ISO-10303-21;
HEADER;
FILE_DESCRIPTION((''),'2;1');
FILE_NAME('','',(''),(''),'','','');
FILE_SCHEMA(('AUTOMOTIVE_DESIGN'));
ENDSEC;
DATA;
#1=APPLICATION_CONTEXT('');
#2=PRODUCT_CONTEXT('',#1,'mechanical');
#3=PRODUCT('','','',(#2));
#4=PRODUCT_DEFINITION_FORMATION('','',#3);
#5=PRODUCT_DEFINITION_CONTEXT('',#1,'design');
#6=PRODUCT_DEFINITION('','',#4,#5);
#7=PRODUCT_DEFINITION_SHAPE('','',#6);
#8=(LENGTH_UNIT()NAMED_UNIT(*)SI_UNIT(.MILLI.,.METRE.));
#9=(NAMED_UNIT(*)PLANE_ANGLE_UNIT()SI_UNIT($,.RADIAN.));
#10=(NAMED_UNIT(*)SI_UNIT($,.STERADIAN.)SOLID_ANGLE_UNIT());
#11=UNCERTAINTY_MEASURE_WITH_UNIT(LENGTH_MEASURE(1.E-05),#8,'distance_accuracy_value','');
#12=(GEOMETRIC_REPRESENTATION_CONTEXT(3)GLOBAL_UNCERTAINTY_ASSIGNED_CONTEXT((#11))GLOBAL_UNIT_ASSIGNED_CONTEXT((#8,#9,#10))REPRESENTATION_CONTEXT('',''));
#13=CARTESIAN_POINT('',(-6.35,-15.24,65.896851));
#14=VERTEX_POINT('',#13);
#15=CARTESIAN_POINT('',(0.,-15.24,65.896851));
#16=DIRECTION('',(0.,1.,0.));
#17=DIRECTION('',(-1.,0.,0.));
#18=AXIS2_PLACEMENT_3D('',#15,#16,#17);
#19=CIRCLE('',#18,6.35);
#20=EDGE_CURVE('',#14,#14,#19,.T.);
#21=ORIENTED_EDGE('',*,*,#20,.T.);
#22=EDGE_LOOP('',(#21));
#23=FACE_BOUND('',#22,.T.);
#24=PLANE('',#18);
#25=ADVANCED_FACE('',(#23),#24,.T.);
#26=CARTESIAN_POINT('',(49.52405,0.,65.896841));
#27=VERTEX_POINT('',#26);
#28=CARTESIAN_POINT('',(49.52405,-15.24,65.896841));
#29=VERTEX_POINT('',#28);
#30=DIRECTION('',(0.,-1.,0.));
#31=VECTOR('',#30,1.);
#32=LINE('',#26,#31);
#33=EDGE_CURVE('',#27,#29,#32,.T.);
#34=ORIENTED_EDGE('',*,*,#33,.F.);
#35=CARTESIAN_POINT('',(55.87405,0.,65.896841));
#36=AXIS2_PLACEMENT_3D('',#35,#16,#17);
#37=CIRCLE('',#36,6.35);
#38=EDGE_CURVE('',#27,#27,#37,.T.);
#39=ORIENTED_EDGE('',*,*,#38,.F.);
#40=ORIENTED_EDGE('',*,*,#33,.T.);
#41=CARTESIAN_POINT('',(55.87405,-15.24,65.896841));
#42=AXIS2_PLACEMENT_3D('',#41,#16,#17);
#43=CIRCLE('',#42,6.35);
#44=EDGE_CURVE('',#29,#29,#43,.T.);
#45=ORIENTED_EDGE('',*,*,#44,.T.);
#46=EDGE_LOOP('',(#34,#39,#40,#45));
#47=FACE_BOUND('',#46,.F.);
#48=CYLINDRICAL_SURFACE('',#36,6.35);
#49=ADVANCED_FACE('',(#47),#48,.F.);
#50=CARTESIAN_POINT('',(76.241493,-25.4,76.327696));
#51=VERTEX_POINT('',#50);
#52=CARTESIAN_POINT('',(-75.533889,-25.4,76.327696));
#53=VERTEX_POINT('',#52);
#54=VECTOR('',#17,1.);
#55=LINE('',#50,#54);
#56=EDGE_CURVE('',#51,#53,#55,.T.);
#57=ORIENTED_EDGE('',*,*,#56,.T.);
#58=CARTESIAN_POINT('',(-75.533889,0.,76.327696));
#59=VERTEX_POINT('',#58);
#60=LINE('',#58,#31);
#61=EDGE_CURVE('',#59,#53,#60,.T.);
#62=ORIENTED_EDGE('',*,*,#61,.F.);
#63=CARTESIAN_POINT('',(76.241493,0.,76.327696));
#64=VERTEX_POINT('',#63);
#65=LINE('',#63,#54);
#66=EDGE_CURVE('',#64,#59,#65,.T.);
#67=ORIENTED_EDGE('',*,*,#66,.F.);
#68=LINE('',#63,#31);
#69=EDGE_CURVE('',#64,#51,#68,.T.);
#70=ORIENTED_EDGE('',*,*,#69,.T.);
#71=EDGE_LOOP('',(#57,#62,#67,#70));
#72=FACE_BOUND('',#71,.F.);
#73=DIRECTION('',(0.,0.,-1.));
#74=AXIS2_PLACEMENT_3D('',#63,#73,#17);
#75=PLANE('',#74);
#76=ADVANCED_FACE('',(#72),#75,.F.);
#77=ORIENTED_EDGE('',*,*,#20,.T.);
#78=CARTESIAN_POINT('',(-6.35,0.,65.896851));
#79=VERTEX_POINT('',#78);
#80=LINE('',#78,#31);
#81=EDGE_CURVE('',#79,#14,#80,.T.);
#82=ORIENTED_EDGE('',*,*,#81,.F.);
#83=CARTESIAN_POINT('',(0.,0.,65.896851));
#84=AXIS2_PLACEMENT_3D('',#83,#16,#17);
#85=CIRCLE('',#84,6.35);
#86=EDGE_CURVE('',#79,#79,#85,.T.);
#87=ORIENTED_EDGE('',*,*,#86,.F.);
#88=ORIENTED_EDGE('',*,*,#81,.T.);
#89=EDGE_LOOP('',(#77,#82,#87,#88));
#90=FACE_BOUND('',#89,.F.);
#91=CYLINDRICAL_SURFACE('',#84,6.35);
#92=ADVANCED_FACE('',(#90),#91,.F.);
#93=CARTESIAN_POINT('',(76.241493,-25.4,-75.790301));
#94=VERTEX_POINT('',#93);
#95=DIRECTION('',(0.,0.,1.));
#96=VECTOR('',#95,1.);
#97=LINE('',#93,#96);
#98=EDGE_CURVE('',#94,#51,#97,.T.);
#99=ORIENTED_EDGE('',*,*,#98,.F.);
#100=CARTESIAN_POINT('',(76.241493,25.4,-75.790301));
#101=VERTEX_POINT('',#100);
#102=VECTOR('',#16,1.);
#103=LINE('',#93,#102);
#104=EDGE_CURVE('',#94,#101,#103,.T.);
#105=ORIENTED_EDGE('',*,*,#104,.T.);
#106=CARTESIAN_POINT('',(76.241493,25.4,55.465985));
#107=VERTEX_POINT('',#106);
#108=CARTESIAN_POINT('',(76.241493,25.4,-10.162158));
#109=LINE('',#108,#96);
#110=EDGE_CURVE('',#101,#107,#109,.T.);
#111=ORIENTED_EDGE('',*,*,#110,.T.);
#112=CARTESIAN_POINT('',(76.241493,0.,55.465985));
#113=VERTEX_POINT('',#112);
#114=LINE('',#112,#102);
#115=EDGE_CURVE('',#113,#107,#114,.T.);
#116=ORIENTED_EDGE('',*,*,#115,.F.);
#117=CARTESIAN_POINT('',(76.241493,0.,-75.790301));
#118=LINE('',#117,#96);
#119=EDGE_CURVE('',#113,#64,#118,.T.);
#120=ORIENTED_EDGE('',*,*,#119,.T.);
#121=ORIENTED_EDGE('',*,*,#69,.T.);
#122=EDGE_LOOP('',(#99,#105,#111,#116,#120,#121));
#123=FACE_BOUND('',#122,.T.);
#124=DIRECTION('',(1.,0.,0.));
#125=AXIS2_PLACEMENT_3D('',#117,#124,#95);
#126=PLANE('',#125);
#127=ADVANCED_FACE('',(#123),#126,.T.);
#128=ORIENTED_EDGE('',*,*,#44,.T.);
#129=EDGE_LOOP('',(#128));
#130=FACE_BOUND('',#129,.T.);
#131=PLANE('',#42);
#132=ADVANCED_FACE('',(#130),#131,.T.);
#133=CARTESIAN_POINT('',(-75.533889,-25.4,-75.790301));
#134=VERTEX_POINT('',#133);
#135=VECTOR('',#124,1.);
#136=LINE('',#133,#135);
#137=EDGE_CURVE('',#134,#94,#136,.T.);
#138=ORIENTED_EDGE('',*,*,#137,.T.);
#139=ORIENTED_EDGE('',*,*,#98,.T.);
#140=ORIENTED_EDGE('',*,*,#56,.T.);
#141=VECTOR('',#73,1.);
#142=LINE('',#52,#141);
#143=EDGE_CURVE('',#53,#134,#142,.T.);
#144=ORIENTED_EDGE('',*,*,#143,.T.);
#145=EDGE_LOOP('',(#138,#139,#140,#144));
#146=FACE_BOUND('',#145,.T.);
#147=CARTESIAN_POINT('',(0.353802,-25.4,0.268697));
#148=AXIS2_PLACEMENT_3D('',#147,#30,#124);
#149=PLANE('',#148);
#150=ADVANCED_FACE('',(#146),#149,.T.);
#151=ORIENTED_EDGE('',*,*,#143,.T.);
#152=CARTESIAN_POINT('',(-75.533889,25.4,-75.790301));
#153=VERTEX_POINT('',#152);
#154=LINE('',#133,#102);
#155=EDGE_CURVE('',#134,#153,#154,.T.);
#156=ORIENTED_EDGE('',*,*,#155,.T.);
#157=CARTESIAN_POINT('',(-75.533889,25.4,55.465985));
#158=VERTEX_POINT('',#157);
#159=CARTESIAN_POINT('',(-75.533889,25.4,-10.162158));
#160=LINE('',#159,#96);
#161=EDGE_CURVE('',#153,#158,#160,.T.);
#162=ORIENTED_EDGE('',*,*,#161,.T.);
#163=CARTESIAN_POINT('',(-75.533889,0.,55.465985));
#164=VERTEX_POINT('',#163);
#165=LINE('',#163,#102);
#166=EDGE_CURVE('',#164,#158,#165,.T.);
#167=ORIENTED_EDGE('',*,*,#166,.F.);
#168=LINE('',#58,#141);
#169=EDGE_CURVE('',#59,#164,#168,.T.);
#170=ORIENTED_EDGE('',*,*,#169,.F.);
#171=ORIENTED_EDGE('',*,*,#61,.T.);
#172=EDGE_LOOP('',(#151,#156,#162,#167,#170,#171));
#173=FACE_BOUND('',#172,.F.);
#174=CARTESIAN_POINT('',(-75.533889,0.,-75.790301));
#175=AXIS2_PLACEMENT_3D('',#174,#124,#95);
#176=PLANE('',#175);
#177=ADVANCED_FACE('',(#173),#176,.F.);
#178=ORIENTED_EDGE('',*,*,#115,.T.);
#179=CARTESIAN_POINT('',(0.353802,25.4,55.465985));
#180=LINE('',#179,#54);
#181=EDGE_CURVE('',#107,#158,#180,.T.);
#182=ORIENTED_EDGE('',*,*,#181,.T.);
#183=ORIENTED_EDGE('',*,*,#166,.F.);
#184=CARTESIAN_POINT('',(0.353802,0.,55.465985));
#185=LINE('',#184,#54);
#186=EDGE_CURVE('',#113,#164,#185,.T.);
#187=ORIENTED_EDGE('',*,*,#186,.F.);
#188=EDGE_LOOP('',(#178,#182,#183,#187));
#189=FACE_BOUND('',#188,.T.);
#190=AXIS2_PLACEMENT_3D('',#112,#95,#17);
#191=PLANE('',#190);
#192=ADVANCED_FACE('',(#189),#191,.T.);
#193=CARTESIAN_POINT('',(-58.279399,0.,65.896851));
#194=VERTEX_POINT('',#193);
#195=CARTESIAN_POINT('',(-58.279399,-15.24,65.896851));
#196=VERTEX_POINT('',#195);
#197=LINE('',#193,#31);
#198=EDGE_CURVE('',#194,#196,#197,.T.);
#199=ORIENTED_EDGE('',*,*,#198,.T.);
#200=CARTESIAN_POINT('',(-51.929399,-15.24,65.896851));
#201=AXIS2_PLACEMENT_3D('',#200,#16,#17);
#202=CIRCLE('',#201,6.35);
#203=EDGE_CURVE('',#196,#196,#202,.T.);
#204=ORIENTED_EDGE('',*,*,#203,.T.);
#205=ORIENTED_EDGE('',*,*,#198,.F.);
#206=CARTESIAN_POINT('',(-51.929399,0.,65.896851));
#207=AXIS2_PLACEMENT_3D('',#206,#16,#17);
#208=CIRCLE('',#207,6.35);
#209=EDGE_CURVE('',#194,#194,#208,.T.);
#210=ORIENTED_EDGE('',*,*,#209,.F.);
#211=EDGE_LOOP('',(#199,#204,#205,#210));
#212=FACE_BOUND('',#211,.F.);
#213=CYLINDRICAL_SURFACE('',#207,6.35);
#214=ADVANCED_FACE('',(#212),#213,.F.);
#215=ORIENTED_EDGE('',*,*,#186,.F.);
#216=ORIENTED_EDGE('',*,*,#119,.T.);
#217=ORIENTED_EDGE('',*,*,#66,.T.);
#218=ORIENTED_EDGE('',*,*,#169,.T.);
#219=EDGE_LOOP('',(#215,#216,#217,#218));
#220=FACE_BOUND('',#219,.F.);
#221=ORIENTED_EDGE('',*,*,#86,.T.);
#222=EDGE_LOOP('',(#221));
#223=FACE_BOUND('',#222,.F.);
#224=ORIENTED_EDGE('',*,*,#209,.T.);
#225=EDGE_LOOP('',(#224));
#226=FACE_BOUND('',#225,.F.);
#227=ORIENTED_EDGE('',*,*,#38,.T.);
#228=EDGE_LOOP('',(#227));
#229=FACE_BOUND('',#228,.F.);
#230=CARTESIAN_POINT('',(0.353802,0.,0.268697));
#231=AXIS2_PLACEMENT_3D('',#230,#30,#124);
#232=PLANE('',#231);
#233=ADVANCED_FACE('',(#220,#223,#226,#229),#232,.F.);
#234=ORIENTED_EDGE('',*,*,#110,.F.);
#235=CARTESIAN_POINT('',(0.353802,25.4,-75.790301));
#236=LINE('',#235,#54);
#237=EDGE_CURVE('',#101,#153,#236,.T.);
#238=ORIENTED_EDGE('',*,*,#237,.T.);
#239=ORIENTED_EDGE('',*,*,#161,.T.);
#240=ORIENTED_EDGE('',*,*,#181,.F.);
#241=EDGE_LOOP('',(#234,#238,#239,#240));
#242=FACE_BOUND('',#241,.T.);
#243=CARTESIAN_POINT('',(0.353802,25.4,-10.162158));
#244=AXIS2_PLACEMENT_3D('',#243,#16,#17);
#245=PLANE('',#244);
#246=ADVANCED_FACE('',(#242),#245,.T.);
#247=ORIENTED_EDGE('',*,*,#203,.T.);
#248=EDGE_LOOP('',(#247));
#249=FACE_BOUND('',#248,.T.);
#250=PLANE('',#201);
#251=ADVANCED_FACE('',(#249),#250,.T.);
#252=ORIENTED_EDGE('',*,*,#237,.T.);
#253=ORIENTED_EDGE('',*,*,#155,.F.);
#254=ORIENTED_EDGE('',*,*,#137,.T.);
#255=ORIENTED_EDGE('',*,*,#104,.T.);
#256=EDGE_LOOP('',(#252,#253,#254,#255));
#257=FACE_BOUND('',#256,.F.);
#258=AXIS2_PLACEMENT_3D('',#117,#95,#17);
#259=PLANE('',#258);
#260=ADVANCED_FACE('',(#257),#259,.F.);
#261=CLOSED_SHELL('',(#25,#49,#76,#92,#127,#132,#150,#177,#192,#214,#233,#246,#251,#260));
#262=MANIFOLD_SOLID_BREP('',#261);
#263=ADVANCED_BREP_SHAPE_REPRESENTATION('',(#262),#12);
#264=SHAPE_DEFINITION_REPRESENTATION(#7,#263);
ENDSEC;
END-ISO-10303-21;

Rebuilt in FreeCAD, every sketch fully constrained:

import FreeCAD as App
import Part
import Sketcher
from FreeCAD import Vector
Q = App.Units.Quantity

doc = App.newDocument("Part")
params = doc.addObject("Spreadsheet::Sheet", "Params")
for row, (alias, value) in enumerate([
    ("pad1_length", "1 in"),
    ("pad2_length", "1 in"),
    ("sketch3_diameter", "0.5 in"),
    ("pocket1_length", "0.6 in"),
], start=1):
    params.set(f"A{row}", alias)
    params.set(f"B{row}", "=" + value)
    params.setAlias(f"B{row}", alias)

body = doc.addObject("PartDesign::Body", "Body")

# Sketch on XZ plane
sketch1 = body.newObject("Sketcher::SketchObject", "Sketch")
sketch1.AttachmentSupport = (doc.getObject("XZ_Plane"), [""])
sketch1.MapMode = "FlatFace"
sketch1.addGeometry([
    Part.LineSegment(Vector(-76, 76, 0), Vector(-76, -76, 0)),
    Part.LineSegment(Vector(-76, -76, 0), Vector(76, -76, 0)),
    Part.LineSegment(Vector(76, -76, 0), Vector(76, 76, 0)),
    Part.LineSegment(Vector(76, 76, 0), Vector(-76, 76, 0)),
], False)
sketch1.addConstraint([
    Sketcher.Constraint("Coincident", 0, 2, 1, 1),
    Sketcher.Constraint("Coincident", 1, 2, 2, 1),
    Sketcher.Constraint("Coincident", 2, 2, 3, 1),
    Sketcher.Constraint("Coincident", 3, 2, 0, 1),
    Sketcher.Constraint("Vertical", 0),
    Sketcher.Constraint("Horizontal", 1),
    Sketcher.Constraint("Vertical", 2),
    Sketcher.Constraint("Horizontal", 3),
    Sketcher.Constraint("DistanceX", 1, 1, 1, 2, 151.775382),
    Sketcher.Constraint("DistanceY", 0, 2, -1, 1, 75.790301),
    Sketcher.Constraint("DistanceY", 0, 2, 0, 1, 152.117997),
    Sketcher.Constraint("DistanceX", 0, 2, -1, 1, 75.533889),
])
pad1 = body.newObject("PartDesign::Pad", "Pad")
pad1.Profile = sketch1
pad1.setExpression("Length", "Params.pad1_length")

# Sketch on XZ plane
sketch2 = body.newObject("Sketcher::SketchObject", "Sketch001")
sketch2.AttachmentSupport = (doc.getObject("XZ_Plane"), [""])
sketch2.MapMode = "FlatFace"
sketch2.addGeometry([
    Part.LineSegment(Vector(76, 55, 0), Vector(76, -76, 0)),
    Part.LineSegment(Vector(76, -76, 0), Vector(-76, -76, 0)),
    Part.LineSegment(Vector(-76, -76, 0), Vector(-76, 55, 0)),
    Part.LineSegment(Vector(-76, 55, 0), Vector(76, 55, 0)),
], False)
sketch2.addConstraint([
    Sketcher.Constraint("Coincident", 0, 2, 1, 1),
    Sketcher.Constraint("Coincident", 1, 2, 2, 1),
    Sketcher.Constraint("Coincident", 2, 2, 3, 1),
    Sketcher.Constraint("Coincident", 3, 2, 0, 1),
    Sketcher.Constraint("Vertical", 0),
    Sketcher.Constraint("Horizontal", 1),
    Sketcher.Constraint("Vertical", 2),
    Sketcher.Constraint("Horizontal", 3),
    Sketcher.Constraint("DistanceY", -1, 1, 2, 2, Q("2.1837002 in")),
    Sketcher.Constraint("DistanceX", 1, 2, 1, 1, 151.775382),
    Sketcher.Constraint("DistanceY", 0, 2, -1, 1, 75.790301),
    Sketcher.Constraint("DistanceX", 1, 2, -1, 1, 75.533889),
])
pad2 = body.newObject("PartDesign::Pad", "Pad001")
pad2.Profile = sketch2
pad2.setExpression("Length", "Params.pad2_length")
pad2.Reversed = True

# Sketch on XZ plane
sketch3 = body.newObject("Sketcher::SketchObject", "Sketch002")
sketch3.AttachmentSupport = (doc.getObject("XZ_Plane"), [""])
sketch3.MapMode = "FlatFace"
sketch3.addGeometry([
    Part.Circle(Vector(56, 66, 0), Vector(0, 0, 1), 6),
    Part.Circle(Vector(0, 66, 0), Vector(0, 0, 1), 6),
    Part.Circle(Vector(-52, 66, 0), Vector(0, 0, 1), 6),
], False)
sketch3.addConstraint([
    Sketcher.Constraint("Equal", 0, 1),
    Sketcher.Constraint("Equal", 1, 2),
    Sketcher.Constraint("PointOnObject", 1, 3, -2),
    Sketcher.Constraint("Horizontal", 1, 3, 2, 3),
    Sketcher.Constraint("Diameter", 0, Q("0.5 in")),
    Sketcher.Constraint("DistanceX", 2, 3, -1, 1, 51.929399),
    Sketcher.Constraint("DistanceX", -1, 1, 0, 3, 55.87405),
    Sketcher.Constraint("DistanceY", -1, 1, 0, 3, 65.896841),
    Sketcher.Constraint("DistanceY", -1, 1, 1, 3, 65.896851),
])
sketch3.setExpression("Constraints[4]", "Params.sketch3_diameter")
pocket1 = body.newObject("PartDesign::Pocket", "Pocket")
pocket1.Profile = sketch3
pocket1.setExpression("Length", "Params.pocket1_length")
pocket1.Reversed = True

doc.recompute()
